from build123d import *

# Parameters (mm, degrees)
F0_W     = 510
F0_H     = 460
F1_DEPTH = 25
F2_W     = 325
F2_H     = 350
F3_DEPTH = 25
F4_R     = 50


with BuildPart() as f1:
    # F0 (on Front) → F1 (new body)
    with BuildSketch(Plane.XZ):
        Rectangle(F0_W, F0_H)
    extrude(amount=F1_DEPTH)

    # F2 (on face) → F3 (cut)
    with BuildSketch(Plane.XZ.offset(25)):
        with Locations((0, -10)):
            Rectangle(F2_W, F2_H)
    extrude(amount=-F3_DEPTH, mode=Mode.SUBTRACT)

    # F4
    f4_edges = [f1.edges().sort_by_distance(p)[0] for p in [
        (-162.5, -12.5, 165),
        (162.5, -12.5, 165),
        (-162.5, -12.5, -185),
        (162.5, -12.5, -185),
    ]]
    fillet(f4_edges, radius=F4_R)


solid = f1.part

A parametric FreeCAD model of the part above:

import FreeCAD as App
import Part
import Sketcher
Q = App.Units.Quantity


def edges_at(feature, points):
    """Names of the edges that pass closest to the given points."""
    edges = feature.Shape.Edges
    near = lambda p: min(range(len(edges)), key=lambda i: edges[i].distToShape(Part.Vertex(*p))[0])
    return sorted({f"Edge{near(p) + 1}" for p in points})


def add_polygon(sketch, points):
    """Adds a closed chain of lines whose ends are joined by coincident constraints."""
    first, n = sketch.GeometryCount, len(points)
    for a, b in zip(points, points[1:] + points[:1]):
        sketch.addGeometry(Part.LineSegment(App.Vector(*a, 0), App.Vector(*b, 0)), False)
    for i in range(n):
        sketch.addConstraint(Sketcher.Constraint("Coincident", first + i, 2, first + (i + 1) % n, 1))

doc = App.newDocument("Part")
body = doc.addObject("PartDesign::Body", "Body")

# Sketch on XZ plane
sketch1 = body.newObject("Sketcher::SketchObject", "Sketch")
sketch1.AttachmentSupport = (doc.getObject("XZ_Plane"), [""])
sketch1.MapMode = "FlatFace"
add_polygon(sketch1, [(-255, 230), (-255, -230), (255, -230), (255, 230)])  # lines 0-3
sketch1.addConstraint([
    Sketcher.Constraint("Vertical", 0),
    Sketcher.Constraint("Horizontal", 1),
    Sketcher.Constraint("Vertical", 2),
    Sketcher.Constraint("Horizontal", 3),
    Sketcher.Constraint("Symmetric", 0, 2, 2, 2, -1, 1),
    Sketcher.Constraint("DistanceX", 1, 1, 1, 2, Q("510 mm")),
    Sketcher.Constraint("DistanceY", 0, 2, 0, 1, Q("460 mm")),
])
pad1 = body.newObject("PartDesign::Pad", "Pad")
pad1.Profile = sketch1
pad1.Length = 25

# Sketch on XZ plane
sketch2 = body.newObject("Sketcher::SketchObject", "Sketch001")
sketch2.AttachmentSupport = (doc.getObject("XZ_Plane"), [""])
sketch2.MapMode = "FlatFace"
sketch2.AttachmentOffset = App.Placement(App.Vector(0, 0, 25), App.Rotation())
add_polygon(sketch2, [(-162.5, 165), (-162.5, -185), (162.5, -185), (162.5, 165)])  # lines 0-3
sketch2.addConstraint([
    Sketcher.Constraint("Vertical", 0),
    Sketcher.Constraint("Horizontal", 1),
    Sketcher.Constraint("Vertical", 2),
    Sketcher.Constraint("Horizontal", 3),
    Sketcher.Constraint("DistanceX", 1, 1, 1, 2, Q("325 mm")),
    Sketcher.Constraint("DistanceY", 0, 2, 0, 1, Q("350 mm")),
    Sketcher.Constraint("DistanceY", 0, 2, -1, 1, Q("185 mm")),
    Sketcher.Constraint("DistanceX", 0, 2, -1, 1, Q("162.5 mm")),
])
pocket1 = body.newObject("PartDesign::Pocket", "Pocket")
pocket1.Profile = sketch2
pocket1.Length = 25
doc.recompute()

fillet = body.newObject("PartDesign::Fillet", "Fillet")
fillet.Base = (pocket1, edges_at(pocket1, [
    (-162.5, -12.5, 165),
    (162.5, -12.5, 165),
    (-162.5, -12.5, -185),
    (162.5, -12.5, -185),
]))
fillet.Radius = 50

doc.recompute()
